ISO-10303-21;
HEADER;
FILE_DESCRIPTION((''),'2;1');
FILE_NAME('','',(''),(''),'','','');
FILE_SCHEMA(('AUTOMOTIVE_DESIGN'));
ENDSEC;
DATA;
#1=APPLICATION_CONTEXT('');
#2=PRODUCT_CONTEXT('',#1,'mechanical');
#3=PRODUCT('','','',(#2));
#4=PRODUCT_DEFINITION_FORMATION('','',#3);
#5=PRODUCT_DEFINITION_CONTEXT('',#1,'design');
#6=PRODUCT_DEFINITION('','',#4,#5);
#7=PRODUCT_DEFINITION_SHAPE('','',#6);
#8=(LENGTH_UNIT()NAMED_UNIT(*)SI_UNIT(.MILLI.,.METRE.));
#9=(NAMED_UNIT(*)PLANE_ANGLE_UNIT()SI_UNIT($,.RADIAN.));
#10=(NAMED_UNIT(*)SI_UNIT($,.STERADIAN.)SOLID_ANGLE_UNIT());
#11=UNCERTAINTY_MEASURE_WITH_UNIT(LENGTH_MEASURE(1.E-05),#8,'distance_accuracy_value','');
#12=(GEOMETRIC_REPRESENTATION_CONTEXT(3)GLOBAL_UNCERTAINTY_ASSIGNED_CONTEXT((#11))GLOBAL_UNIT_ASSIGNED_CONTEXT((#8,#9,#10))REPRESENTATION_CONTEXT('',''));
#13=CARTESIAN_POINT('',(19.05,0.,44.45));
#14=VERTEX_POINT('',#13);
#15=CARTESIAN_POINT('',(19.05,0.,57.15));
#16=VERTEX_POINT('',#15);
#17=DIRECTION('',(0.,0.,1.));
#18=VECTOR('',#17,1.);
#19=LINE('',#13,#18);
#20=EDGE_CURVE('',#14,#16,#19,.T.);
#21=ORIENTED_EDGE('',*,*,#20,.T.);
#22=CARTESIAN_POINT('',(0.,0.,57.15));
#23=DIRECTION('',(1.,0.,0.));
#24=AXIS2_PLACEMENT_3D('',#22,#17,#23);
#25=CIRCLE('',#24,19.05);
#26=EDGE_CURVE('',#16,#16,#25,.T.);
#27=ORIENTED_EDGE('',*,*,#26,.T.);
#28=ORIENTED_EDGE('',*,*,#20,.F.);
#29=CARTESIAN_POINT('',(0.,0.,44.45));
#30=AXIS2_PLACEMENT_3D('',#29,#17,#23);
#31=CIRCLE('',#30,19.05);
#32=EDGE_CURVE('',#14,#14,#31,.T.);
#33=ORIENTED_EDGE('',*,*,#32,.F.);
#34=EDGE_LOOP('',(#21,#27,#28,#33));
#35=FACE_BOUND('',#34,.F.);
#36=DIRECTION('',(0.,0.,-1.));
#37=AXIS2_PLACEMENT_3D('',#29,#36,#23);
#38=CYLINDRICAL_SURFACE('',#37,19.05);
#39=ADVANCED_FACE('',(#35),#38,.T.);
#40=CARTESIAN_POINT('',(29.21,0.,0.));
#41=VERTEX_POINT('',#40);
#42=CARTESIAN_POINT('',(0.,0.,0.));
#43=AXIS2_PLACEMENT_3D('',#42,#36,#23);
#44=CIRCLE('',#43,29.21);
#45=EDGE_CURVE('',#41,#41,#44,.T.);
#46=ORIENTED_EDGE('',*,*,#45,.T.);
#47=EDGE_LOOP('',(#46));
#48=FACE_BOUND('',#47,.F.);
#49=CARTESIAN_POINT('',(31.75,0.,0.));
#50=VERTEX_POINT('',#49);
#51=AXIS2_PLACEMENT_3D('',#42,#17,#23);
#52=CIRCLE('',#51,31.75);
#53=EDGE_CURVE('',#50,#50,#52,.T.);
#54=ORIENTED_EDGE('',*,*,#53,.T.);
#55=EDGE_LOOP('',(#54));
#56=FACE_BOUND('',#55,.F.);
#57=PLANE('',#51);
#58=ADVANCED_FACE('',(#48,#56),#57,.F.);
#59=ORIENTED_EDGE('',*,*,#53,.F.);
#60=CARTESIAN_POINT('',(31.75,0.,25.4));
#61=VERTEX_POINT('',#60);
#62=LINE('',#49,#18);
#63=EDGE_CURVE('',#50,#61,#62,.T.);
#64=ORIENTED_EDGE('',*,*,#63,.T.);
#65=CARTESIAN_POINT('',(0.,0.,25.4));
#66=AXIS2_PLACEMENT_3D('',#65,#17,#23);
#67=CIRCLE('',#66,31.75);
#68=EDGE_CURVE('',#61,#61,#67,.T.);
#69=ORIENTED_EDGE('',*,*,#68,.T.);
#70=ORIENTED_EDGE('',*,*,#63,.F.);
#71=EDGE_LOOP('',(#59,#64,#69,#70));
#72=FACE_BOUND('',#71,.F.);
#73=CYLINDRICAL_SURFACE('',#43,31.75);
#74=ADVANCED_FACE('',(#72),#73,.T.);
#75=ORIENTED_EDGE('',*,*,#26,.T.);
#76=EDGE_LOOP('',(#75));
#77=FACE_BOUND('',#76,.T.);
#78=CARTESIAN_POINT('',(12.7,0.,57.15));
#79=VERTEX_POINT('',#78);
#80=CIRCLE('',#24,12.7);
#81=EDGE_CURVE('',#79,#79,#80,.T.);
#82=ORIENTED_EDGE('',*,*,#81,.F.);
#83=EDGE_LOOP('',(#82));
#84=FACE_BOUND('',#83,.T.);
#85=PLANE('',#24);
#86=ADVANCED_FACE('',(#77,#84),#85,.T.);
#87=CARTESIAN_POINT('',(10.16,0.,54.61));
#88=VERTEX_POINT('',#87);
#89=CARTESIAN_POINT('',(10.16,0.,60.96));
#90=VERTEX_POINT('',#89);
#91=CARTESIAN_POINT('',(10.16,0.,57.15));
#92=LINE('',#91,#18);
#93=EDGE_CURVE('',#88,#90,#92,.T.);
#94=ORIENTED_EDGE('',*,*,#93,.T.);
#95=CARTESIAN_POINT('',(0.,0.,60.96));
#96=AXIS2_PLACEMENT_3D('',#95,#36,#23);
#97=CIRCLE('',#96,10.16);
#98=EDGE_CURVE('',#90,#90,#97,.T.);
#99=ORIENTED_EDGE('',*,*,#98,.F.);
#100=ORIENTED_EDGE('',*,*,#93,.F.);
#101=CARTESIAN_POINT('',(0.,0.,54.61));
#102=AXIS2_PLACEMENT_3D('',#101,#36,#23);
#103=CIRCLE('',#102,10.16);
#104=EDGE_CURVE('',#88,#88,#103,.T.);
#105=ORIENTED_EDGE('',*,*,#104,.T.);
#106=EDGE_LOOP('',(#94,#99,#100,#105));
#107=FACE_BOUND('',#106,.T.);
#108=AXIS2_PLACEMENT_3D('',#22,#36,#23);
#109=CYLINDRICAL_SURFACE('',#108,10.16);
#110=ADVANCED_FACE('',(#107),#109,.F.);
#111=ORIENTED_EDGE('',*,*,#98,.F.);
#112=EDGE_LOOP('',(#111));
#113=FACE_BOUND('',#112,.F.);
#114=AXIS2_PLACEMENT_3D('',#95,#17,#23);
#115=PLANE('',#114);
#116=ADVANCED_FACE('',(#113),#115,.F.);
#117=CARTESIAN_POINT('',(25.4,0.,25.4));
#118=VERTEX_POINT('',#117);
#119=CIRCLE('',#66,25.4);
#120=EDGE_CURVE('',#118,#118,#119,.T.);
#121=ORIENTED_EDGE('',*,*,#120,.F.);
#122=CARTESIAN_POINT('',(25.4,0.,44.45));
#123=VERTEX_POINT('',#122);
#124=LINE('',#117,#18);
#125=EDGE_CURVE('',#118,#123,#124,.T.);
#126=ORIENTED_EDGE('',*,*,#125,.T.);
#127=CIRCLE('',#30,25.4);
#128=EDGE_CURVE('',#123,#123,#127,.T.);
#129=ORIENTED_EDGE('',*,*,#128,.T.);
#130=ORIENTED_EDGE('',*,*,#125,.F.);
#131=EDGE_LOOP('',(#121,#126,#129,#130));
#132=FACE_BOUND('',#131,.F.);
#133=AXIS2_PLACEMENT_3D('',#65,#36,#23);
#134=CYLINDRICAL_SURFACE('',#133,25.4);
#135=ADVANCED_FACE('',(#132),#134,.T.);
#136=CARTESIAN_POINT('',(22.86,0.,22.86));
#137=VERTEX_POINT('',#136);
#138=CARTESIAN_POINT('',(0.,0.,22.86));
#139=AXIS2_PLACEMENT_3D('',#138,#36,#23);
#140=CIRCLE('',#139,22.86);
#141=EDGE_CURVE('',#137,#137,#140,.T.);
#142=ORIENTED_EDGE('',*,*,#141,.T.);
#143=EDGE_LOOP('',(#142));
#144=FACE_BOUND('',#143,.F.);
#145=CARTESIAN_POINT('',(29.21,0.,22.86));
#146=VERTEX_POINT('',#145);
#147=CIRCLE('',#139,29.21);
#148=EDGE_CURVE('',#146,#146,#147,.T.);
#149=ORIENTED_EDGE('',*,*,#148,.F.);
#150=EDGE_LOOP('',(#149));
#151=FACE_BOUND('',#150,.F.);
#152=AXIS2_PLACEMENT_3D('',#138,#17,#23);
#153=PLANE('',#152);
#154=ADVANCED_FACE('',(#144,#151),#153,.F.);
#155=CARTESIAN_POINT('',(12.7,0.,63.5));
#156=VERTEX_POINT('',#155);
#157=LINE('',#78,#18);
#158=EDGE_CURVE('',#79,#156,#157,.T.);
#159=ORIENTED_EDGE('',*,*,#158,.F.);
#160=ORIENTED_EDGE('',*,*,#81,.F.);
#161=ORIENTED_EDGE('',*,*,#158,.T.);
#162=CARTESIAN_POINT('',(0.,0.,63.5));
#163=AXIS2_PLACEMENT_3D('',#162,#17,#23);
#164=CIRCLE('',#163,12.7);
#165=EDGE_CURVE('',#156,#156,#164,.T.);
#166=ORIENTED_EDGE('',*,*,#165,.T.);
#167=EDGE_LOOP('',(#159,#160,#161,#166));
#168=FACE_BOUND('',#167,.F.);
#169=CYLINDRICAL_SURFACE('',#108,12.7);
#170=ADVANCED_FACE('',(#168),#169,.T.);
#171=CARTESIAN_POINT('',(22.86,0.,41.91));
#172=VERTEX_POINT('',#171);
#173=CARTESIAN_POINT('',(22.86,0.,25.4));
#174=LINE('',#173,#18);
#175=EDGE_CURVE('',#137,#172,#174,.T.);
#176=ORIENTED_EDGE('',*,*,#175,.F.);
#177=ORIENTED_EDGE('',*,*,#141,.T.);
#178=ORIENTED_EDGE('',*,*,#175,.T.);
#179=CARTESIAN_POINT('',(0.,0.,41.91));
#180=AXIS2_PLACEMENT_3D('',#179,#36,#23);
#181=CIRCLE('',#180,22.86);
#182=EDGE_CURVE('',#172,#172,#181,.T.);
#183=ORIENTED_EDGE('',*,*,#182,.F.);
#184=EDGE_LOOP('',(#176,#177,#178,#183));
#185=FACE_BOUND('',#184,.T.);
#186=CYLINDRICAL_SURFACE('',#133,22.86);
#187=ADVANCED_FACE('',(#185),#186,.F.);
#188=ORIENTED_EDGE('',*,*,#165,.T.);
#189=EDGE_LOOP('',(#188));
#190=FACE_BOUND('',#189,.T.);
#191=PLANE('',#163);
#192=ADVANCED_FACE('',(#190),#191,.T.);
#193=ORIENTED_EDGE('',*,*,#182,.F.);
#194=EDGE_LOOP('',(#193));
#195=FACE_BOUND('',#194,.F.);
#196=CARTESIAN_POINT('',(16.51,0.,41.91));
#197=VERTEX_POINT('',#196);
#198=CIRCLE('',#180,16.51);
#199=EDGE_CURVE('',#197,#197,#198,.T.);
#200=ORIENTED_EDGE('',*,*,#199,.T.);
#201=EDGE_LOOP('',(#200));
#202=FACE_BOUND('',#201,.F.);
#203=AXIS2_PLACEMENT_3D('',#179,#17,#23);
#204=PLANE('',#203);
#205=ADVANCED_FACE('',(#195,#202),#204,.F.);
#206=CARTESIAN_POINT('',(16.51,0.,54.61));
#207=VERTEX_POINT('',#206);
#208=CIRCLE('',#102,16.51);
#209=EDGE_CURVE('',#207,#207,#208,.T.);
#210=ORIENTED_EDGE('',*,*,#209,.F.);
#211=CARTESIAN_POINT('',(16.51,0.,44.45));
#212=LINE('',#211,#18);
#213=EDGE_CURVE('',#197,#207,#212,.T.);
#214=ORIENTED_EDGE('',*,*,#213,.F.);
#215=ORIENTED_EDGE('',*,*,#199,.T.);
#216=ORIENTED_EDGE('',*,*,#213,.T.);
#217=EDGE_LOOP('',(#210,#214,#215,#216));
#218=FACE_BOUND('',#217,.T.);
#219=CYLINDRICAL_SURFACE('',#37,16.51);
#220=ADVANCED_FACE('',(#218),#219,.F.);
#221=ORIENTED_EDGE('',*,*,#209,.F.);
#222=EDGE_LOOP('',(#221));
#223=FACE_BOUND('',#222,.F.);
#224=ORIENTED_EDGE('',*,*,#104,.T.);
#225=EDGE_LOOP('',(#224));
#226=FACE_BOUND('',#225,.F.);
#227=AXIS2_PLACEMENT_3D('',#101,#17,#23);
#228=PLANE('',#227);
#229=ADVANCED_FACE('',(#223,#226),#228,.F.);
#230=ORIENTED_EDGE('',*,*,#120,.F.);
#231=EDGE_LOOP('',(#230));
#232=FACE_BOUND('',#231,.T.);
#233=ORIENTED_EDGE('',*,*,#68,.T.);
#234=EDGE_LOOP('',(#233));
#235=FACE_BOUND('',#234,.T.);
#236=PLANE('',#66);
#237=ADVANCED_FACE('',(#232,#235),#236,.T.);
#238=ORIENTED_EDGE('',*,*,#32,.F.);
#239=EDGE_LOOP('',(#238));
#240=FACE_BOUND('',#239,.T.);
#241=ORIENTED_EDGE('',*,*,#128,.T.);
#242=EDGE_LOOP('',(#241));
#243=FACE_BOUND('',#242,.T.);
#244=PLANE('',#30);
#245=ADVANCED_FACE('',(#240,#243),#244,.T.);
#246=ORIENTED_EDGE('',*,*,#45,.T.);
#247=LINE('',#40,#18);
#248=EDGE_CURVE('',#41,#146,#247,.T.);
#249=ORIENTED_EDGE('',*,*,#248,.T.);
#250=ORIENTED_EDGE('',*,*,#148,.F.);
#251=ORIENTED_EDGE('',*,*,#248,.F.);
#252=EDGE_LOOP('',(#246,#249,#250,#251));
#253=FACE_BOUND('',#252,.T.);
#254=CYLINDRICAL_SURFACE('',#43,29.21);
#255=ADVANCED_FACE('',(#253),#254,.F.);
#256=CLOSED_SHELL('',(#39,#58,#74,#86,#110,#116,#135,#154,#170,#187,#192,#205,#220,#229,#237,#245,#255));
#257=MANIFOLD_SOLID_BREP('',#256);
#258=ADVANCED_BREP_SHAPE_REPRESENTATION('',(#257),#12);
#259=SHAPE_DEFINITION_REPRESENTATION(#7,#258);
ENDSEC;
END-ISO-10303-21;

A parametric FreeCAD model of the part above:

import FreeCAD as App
import Part
import Sketcher
from FreeCAD import Vector
Q = App.Units.Quantity


def faces_at(feature, points):
    """Names of the faces that lie closest to the given points."""
    faces = feature.Shape.Faces
    near = lambda p: min(range(len(faces)), key=lambda i: faces[i].distToShape(Part.Vertex(*p))[0])
    return sorted({f"Face{near(p) + 1}" for p in points})

doc = App.newDocument("Part")
body = doc.addObject("PartDesign::Body", "Body")

# Sketch on XY plane
sketch1 = body.newObject("Sketcher::SketchObject", "Sketch")
sketch1.AttachmentSupport = (doc.getObject("XY_Plane"), [""])
sketch1.MapMode = "FlatFace"
sketch1.addGeometry(Part.Circle(Vector(0, 0, 0), Vector(0, 0, 1), 32), False)
sketch1.addConstraint([
    Sketcher.Constraint("Coincident", 0, 3, -1, 1),
    Sketcher.Constraint("Diameter", 0, Q("2.5 in")),
])
pad1 = body.newObject("PartDesign::Pad", "Pad")
pad1.Profile = sketch1
pad1.Length = Q("1 in")

# Sketch on XY plane
sketch2 = body.newObject("Sketcher::SketchObject", "Sketch001")
sketch2.AttachmentSupport = (doc.getObject("XY_Plane"), [""])
sketch2.MapMode = "FlatFace"
sketch2.AttachmentOffset = App.Placement(Vector(0, 0, 1 * 25.4), App.Rotation())
sketch2.addGeometry(Part.Circle(Vector(0, 0, 0), Vector(0, 0, 1), 25), False)
sketch2.addConstraint([
    Sketcher.Constraint("Coincident", 0, 3, -1, 1),
    Sketcher.Constraint("Diameter", 0, Q("2 in")),
])
pad2 = body.newObject("PartDesign::Pad", "Pad001")
pad2.Profile = sketch2
pad2.Length = Q("0.75 in")

# Sketch on XY plane
sketch3 = body.newObject("Sketcher::SketchObject", "Sketch002")
sketch3.AttachmentSupport = (doc.getObject("XY_Plane"), [""])
sketch3.MapMode = "FlatFace"
sketch3.AttachmentOffset = App.Placement(Vector(0, 0, 1.75 * 25.4), App.Rotation())
sketch3.addGeometry(Part.Circle(Vector(0, 0, 0), Vector(0, 0, 1), 19), False)
sketch3.addConstraint([
    Sketcher.Constraint("Coincident", 0, 3, -1, 1),
    Sketcher.Constraint("Diameter", 0, Q("1.5 in")),
])
pad3 = body.newObject("PartDesign::Pad", "Pad002")
pad3.Profile = sketch3
pad3.Length = Q("0.5 in")

# Sketch on XY plane
sketch4 = body.newObject("Sketcher::SketchObject", "Sketch003")
sketch4.AttachmentSupport = (doc.getObject("XY_Plane"), [""])
sketch4.MapMode = "FlatFace"
sketch4.AttachmentOffset = App.Placement(Vector(0, 0, 2.25 * 25.4), App.Rotation())
sketch4.addGeometry(Part.Circle(Vector(0, 0, 0), Vector(0, 0, 1), 13), False)
sketch4.addConstraint([
    Sketcher.Constraint("Coincident", 0, 3, -1, 1),
    Sketcher.Constraint("Diameter", 0, Q("1 in")),
])
pad4 = body.newObject("PartDesign::Pad", "Pad003")
pad4.Profile = sketch4
pad4.Length = Q("0.25 in")
doc.recompute()

thickness = body.newObject("PartDesign::Thickness", "Thickness")
thickness.Base = (pad4, faces_at(pad4, [(0, 0, 0)]))
thickness.Value = Q("0.1 in")
thickness.Reversed = True
thickness.Join = "Intersection"

doc.recompute()
